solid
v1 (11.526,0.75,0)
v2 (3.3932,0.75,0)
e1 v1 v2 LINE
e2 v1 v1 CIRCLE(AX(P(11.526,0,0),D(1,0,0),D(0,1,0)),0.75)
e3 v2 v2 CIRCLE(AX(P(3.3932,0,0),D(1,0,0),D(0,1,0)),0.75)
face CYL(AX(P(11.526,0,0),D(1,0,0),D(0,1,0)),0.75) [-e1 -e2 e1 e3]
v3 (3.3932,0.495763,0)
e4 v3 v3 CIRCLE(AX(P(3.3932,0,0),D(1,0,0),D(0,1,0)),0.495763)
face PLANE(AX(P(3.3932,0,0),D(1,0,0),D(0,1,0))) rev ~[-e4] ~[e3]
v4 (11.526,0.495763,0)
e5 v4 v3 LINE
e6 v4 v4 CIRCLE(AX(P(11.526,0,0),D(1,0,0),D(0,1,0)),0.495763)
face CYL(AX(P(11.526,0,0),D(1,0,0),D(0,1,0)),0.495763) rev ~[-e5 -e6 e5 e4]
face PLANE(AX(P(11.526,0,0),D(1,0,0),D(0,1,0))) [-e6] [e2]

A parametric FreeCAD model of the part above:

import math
import FreeCAD as App
import Part
import Sketcher

V = App.Vector
Q = App.Units.Quantity


def add_polygon(sketch, points):
    """Adds a closed chain of lines whose ends are joined by coincident constraints."""
    first, n = sketch.GeometryCount, len(points)
    for a, b in zip(points, points[1:] + points[:1]):
        sketch.addGeometry(Part.LineSegment(App.Vector(*a, 0), App.Vector(*b, 0)), False)
    for i in range(n):
        sketch.addConstraint(Sketcher.Constraint("Coincident", first + i, 2, first + (i + 1) % n, 1))

doc = App.newDocument("Part")
params = doc.addObject("Spreadsheet::Sheet", "Params")
for row, (alias, value) in enumerate([
    ("sketch1_width", "19.21 mm"),
    ("pad1_length", "0.49 mm"),
    ("revolution_angle", "360 deg"),
    ("revolution2_angle", "360 deg"),
    ("pocket1_length", "0.05 mm"),
    ("sketch5_diameter", "1.5 mm"),
    ("pad2_length", "10.08525 mm"),
    ("sketch6_diameter", "6 mm"),
    ("pocket2_length", "26 mm"),
    ("pocket3_length", "9.580987 mm"),
    ("sketch8_width", "15 mm"),
    ("pocket4_length", "5 mm"),
], start=1):
    params.set(f"A{row}", alias)
    params.set(f"B{row}", "=" + value)
    params.setAlias(f"B{row}", alias)

body = doc.addObject("PartDesign::Body", "Body")

sketch1 = body.newObject("Sketcher::SketchObject", "Sketch")
sketch1.AttachmentSupport = (doc.getObject("XY_Plane"), [""])
sketch1.MapMode = "FlatFace"
sketch1.addGeometry(Part.LineSegment(V(19.21, 0.38, 0), V(0, 0.38, 0)), False)
sketch1.addGeometry(Part.ArcOfCircle(Part.Circle(V(0, 0, 0), V(0, 0, 1), 0.38), math.radians(90), math.radians(270)), False)
sketch1.addGeometry(Part.LineSegment(V(0, -0.38, 0), V(19.21, -0.38, 0)), False)
sketch1.addGeometry(Part.ArcOfCircle(Part.Circle(V(19.21, 0, 0), V(0, 0, 1), 0.38), math.radians(-90), math.radians(90)), False)
sketch1.addConstraint(Sketcher.Constraint("Tangent", 0, 2, 1, 1))
sketch1.addConstraint(Sketcher.Constraint("Tangent", 1, 2, 2, 1))
sketch1.addConstraint(Sketcher.Constraint("Tangent", 2, 2, 3, 1))
sketch1.addConstraint(Sketcher.Constraint("Tangent", 3, 2, 0, 1))
sketch1.addConstraint(Sketcher.Constraint("Horizontal", 0))
sketch1.addConstraint(Sketcher.Constraint("Horizontal", 2))
sketch1.addConstraint(Sketcher.Constraint("Coincident", 1, 3, -1, 1))
sketch1.addConstraint(Sketcher.Constraint("Radius", 1, Q("0.375 mm")))
sketch1.addConstraint(Sketcher.Constraint("DistanceX", 0, 2, 0, 1, Q("19.21 mm")))
sketch1.setExpression("Constraints[8]", "Params.sketch1_width")
pad1 = body.newObject("PartDesign::Pad", "Pad")
pad1.Profile = sketch1
pad1.setExpression("Length", "Params.pad1_length")
pad1.Midplane = True

sketch2 = body.newObject("Sketcher::SketchObject", "Sketch001")
sketch2.AttachmentSupport = (doc.getObject("XY_Plane"), [""])
sketch2.MapMode = "FlatFace"
sketch2.addGeometry(Part.LineSegment(V(0, -0.6, 0), V(0, 0.6, 0)), False)
sketch2.addGeometry(Part.ArcOfCircle(Part.Circle(V(0, 0, 0), V(0, 0, 1), 0.6), math.radians(90), math.radians(270)), False)
sketch2.addConstraint(Sketcher.Constraint("Coincident", 0, 1, 1, 2))
sketch2.addConstraint(Sketcher.Constraint("Coincident", 1, 1, 0, 2))
sketch2.addConstraint(Sketcher.Constraint("Vertical", 0))
sketch2.addConstraint(Sketcher.Constraint("Coincident", 1, 3, -1, 1))
sketch2.addConstraint(Sketcher.Constraint("PointOnObject", 0, 1, -2))
sketch2.addConstraint(Sketcher.Constraint("Radius", 1, Q("0.625 mm")))
revolution = body.newObject("PartDesign::Revolution", "Revolution")
revolution.Profile = sketch2
revolution.ReferenceAxis = (sketch2, ["V_Axis"])
revolution.setExpression("Angle", "Params.revolution_angle")

sketch3 = body.newObject("Sketcher::SketchObject", "Sketch002")
sketch3.AttachmentSupport = (doc.getObject("XY_Plane"), [""])
sketch3.MapMode = "FlatFace"
sketch3.addGeometry(Part.ArcOfCircle(Part.Circle(V(19.2, 0, 0), V(0, 0, 1), 0.6), math.radians(-90), math.radians(90)), False)
sketch3.addGeometry(Part.LineSegment(V(19.2, 0.6, 0), V(19.2, -0.6, 0)), False)
sketch3.addGeometry(Part.LineSegment(V(19.2, 0.6, 0), V(19.2, -0.6, 0)), True)
sketch3.addConstraint(Sketcher.Constraint("Coincident", 0, 1, 1, 2))
sketch3.addConstraint(Sketcher.Constraint("Coincident", 1, 1, 0, 2))
sketch3.addConstraint(Sketcher.Constraint("Vertical", 1))
sketch3.addConstraint(Sketcher.Constraint("Vertical", 2))
sketch3.addConstraint(Sketcher.Constraint("Coincident", 2, 1, 1, 1))
sketch3.addConstraint(Sketcher.Constraint("PointOnObject", 0, 3, -1))
sketch3.addConstraint(Sketcher.Constraint("Equal", 1, 2))
sketch3.addConstraint(Sketcher.Constraint("Radius", 0, Q("0.625 mm")))
sketch3.addConstraint(Sketcher.Constraint("DistanceX", -1, 1, 0, 3, Q("19.21 mm")))
sketch3.addConstraint(Sketcher.Constraint("DistanceX", -1, 1, 0, 1, Q("19.21 mm")))
revolution2 = body.newObject("PartDesign::Revolution", "Revolution001")
revolution2.Profile = sketch3
revolution2.ReferenceAxis = (sketch3, ["Axis0"])
revolution2.setExpression("Angle", "Params.revolution2_angle")

sketch4 = body.newObject("Sketcher::SketchObject", "Sketch003")
sketch4.AttachmentSupport = (doc.getObject("XY_Plane"), [""])
sketch4.MapMode = "FlatFace"
sketch4.AttachmentOffset = App.Placement(V(0, 0, 0.25), App.Rotation())
add_polygon(sketch4, [(1.05, -0.16), (1.15, 0), (1.05, 0.16), (0.87, 0.16), (0.77, 0), (0.87, -0.16)])
sketch4.addConstraint(Sketcher.Constraint("Horizontal", 2))
sketch4.addConstraint(Sketcher.Constraint("Horizontal", 5))
sketch4.addConstraint(Sketcher.Constraint("Symmetric", 2, 2, 4, 2, -1))
sketch4.addConstraint(Sketcher.Constraint("PointOnObject", 0, 2, -1))
sketch4.addConstraint(Sketcher.Constraint("PointOnObject", 3, 2, -1))
sketch4.addConstraint(Sketcher.Constraint("Parallel", 0, 3))
sketch4.addConstraint(Sketcher.Constraint("Parallel", 1, 4))
sketch4.addConstraint(Sketcher.Constraint("DistanceX", 2, 2, 2, 1, Q("0.1875 mm")))
sketch4.addConstraint(Sketcher.Constraint("DistanceX", -1, 1, 0, 2, Q("1.148 mm")))
sketch4.addConstraint(Sketcher.Constraint("DistanceX", -1, 1, 3, 2, Q("0.773 mm")))
sketch4.addConstraint(Sketcher.Constraint("Distance", 0, Q("0.1875 mm")))
pocket1 = body.newObject("PartDesign::Pocket", "Pocket")
pocket1.Profile = sketch4
pocket1.setExpression("Length", "Params.pocket1_length")

sketch5 = body.newObject("Sketcher::SketchObject", "Sketch004")
sketch5.AttachmentSupport = (doc.getObject("YZ_Plane"), [""])
sketch5.MapMode = "FlatFace"
sketch5.AttachmentOffset = App.Placement(V(0, 0, 11.526), App.Rotation())
sketch5.addGeometry(Part.Circle(V(0, 0, 0), V(0, 0, 1), 0.8), False)
sketch5.addConstraint(Sketcher.Constraint("Coincident", 0, 3, -1, 1))
sketch5.addConstraint(Sketcher.Constraint("Diameter", 0, Q("1.5 mm")))
sketch5.setExpression("Constraints[1]", "Params.sketch5_diameter")
pad2 = body.newObject("PartDesign::Pad", "Pad001")
pad2.Profile = sketch5
pad2.setExpression("Length", "Params.pad2_length")
pad2.Reversed = True

sketch6 = body.newObject("Sketcher::SketchObject", "Sketch005")
sketch6.AttachmentSupport = (doc.getObject("YZ_Plane"), [""])
sketch6.MapMode = "FlatFace"
sketch6.AttachmentOffset = App.Placement(V(0, 0, 11.526), App.Rotation())
sketch6.addGeometry(Part.Circle(V(0, 0, 0), V(0, 0, 1), 3), False)
sketch6.addConstraint(Sketcher.Constraint("Coincident", 0, 3, -1, 1))
sketch6.addConstraint(Sketcher.Constraint("Diameter", 0, Q("6 mm")))
sketch6.setExpression("Constraints[1]", "Params.sketch6_diameter")
pocket2 = body.newObject("PartDesign::Pocket", "Pocket001")
pocket2.Profile = sketch6
pocket2.setExpression("Length", "Params.pocket2_length")
pocket2.Reversed = True

sketch7 = body.newObject("Sketcher::SketchObject", "Sketch006")
sketch7.AttachmentSupport = (doc.getObject("YZ_Plane"), [""])
sketch7.MapMode = "FlatFace"
sketch7.AttachmentOffset = App.Placement(V(0, 0, 11.526), App.Rotation())
sketch7.addGeometry(Part.Circle(V(0, 0, 0), V(0, 0, 1), 0.5), False)
sketch7.addConstraint(Sketcher.Constraint("Coincident", 0, 3, -1, 1))
sketch7.addConstraint(Sketcher.Constraint("Diameter", 0, Q("0.991526 mm")))
pocket3 = body.newObject("PartDesign::Pocket", "Pocket002")
pocket3.Profile = sketch7
pocket3.setExpression("Length", "Params.pocket3_length")

sketch8 = body.newObject("Sketcher::SketchObject", "Sketch007")
sketch8.AttachmentSupport = (doc.getObject("YZ_Plane"), [""])
sketch8.MapMode = "FlatFace"
sketch8.AttachmentOffset = App.Placement(V(0, 0, 3.3932), App.Rotation())
add_polygon(sketch8, [(-8, 8), (-8, -8), (8, -8), (8, 8)])
sketch8.addConstraint(Sketcher.Constraint("Vertical", 0))
sketch8.addConstraint(Sketcher.Constraint("Horizontal", 1))
sketch8.addConstraint(Sketcher.Constraint("Vertical", 2))
sketch8.addConstraint(Sketcher.Constraint("Horizontal", 3))
sketch8.addConstraint(Sketcher.Constraint("Symmetric", 0, 2, 2, 2, -1, 1))
sketch8.addConstraint(Sketcher.Constraint("Equal", 3, 0))
sketch8.addConstraint(Sketcher.Constraint("DistanceX", 1, 1, 1, 2, Q("15 mm")))
sketch8.setExpression("Constraints[10]", "Params.sketch8_width")
pocket4 = body.newObject("PartDesign::Pocket", "Pocket003")
pocket4.Profile = sketch8
pocket4.setExpression("Length", "Params.pocket4_length")

doc.recompute()
